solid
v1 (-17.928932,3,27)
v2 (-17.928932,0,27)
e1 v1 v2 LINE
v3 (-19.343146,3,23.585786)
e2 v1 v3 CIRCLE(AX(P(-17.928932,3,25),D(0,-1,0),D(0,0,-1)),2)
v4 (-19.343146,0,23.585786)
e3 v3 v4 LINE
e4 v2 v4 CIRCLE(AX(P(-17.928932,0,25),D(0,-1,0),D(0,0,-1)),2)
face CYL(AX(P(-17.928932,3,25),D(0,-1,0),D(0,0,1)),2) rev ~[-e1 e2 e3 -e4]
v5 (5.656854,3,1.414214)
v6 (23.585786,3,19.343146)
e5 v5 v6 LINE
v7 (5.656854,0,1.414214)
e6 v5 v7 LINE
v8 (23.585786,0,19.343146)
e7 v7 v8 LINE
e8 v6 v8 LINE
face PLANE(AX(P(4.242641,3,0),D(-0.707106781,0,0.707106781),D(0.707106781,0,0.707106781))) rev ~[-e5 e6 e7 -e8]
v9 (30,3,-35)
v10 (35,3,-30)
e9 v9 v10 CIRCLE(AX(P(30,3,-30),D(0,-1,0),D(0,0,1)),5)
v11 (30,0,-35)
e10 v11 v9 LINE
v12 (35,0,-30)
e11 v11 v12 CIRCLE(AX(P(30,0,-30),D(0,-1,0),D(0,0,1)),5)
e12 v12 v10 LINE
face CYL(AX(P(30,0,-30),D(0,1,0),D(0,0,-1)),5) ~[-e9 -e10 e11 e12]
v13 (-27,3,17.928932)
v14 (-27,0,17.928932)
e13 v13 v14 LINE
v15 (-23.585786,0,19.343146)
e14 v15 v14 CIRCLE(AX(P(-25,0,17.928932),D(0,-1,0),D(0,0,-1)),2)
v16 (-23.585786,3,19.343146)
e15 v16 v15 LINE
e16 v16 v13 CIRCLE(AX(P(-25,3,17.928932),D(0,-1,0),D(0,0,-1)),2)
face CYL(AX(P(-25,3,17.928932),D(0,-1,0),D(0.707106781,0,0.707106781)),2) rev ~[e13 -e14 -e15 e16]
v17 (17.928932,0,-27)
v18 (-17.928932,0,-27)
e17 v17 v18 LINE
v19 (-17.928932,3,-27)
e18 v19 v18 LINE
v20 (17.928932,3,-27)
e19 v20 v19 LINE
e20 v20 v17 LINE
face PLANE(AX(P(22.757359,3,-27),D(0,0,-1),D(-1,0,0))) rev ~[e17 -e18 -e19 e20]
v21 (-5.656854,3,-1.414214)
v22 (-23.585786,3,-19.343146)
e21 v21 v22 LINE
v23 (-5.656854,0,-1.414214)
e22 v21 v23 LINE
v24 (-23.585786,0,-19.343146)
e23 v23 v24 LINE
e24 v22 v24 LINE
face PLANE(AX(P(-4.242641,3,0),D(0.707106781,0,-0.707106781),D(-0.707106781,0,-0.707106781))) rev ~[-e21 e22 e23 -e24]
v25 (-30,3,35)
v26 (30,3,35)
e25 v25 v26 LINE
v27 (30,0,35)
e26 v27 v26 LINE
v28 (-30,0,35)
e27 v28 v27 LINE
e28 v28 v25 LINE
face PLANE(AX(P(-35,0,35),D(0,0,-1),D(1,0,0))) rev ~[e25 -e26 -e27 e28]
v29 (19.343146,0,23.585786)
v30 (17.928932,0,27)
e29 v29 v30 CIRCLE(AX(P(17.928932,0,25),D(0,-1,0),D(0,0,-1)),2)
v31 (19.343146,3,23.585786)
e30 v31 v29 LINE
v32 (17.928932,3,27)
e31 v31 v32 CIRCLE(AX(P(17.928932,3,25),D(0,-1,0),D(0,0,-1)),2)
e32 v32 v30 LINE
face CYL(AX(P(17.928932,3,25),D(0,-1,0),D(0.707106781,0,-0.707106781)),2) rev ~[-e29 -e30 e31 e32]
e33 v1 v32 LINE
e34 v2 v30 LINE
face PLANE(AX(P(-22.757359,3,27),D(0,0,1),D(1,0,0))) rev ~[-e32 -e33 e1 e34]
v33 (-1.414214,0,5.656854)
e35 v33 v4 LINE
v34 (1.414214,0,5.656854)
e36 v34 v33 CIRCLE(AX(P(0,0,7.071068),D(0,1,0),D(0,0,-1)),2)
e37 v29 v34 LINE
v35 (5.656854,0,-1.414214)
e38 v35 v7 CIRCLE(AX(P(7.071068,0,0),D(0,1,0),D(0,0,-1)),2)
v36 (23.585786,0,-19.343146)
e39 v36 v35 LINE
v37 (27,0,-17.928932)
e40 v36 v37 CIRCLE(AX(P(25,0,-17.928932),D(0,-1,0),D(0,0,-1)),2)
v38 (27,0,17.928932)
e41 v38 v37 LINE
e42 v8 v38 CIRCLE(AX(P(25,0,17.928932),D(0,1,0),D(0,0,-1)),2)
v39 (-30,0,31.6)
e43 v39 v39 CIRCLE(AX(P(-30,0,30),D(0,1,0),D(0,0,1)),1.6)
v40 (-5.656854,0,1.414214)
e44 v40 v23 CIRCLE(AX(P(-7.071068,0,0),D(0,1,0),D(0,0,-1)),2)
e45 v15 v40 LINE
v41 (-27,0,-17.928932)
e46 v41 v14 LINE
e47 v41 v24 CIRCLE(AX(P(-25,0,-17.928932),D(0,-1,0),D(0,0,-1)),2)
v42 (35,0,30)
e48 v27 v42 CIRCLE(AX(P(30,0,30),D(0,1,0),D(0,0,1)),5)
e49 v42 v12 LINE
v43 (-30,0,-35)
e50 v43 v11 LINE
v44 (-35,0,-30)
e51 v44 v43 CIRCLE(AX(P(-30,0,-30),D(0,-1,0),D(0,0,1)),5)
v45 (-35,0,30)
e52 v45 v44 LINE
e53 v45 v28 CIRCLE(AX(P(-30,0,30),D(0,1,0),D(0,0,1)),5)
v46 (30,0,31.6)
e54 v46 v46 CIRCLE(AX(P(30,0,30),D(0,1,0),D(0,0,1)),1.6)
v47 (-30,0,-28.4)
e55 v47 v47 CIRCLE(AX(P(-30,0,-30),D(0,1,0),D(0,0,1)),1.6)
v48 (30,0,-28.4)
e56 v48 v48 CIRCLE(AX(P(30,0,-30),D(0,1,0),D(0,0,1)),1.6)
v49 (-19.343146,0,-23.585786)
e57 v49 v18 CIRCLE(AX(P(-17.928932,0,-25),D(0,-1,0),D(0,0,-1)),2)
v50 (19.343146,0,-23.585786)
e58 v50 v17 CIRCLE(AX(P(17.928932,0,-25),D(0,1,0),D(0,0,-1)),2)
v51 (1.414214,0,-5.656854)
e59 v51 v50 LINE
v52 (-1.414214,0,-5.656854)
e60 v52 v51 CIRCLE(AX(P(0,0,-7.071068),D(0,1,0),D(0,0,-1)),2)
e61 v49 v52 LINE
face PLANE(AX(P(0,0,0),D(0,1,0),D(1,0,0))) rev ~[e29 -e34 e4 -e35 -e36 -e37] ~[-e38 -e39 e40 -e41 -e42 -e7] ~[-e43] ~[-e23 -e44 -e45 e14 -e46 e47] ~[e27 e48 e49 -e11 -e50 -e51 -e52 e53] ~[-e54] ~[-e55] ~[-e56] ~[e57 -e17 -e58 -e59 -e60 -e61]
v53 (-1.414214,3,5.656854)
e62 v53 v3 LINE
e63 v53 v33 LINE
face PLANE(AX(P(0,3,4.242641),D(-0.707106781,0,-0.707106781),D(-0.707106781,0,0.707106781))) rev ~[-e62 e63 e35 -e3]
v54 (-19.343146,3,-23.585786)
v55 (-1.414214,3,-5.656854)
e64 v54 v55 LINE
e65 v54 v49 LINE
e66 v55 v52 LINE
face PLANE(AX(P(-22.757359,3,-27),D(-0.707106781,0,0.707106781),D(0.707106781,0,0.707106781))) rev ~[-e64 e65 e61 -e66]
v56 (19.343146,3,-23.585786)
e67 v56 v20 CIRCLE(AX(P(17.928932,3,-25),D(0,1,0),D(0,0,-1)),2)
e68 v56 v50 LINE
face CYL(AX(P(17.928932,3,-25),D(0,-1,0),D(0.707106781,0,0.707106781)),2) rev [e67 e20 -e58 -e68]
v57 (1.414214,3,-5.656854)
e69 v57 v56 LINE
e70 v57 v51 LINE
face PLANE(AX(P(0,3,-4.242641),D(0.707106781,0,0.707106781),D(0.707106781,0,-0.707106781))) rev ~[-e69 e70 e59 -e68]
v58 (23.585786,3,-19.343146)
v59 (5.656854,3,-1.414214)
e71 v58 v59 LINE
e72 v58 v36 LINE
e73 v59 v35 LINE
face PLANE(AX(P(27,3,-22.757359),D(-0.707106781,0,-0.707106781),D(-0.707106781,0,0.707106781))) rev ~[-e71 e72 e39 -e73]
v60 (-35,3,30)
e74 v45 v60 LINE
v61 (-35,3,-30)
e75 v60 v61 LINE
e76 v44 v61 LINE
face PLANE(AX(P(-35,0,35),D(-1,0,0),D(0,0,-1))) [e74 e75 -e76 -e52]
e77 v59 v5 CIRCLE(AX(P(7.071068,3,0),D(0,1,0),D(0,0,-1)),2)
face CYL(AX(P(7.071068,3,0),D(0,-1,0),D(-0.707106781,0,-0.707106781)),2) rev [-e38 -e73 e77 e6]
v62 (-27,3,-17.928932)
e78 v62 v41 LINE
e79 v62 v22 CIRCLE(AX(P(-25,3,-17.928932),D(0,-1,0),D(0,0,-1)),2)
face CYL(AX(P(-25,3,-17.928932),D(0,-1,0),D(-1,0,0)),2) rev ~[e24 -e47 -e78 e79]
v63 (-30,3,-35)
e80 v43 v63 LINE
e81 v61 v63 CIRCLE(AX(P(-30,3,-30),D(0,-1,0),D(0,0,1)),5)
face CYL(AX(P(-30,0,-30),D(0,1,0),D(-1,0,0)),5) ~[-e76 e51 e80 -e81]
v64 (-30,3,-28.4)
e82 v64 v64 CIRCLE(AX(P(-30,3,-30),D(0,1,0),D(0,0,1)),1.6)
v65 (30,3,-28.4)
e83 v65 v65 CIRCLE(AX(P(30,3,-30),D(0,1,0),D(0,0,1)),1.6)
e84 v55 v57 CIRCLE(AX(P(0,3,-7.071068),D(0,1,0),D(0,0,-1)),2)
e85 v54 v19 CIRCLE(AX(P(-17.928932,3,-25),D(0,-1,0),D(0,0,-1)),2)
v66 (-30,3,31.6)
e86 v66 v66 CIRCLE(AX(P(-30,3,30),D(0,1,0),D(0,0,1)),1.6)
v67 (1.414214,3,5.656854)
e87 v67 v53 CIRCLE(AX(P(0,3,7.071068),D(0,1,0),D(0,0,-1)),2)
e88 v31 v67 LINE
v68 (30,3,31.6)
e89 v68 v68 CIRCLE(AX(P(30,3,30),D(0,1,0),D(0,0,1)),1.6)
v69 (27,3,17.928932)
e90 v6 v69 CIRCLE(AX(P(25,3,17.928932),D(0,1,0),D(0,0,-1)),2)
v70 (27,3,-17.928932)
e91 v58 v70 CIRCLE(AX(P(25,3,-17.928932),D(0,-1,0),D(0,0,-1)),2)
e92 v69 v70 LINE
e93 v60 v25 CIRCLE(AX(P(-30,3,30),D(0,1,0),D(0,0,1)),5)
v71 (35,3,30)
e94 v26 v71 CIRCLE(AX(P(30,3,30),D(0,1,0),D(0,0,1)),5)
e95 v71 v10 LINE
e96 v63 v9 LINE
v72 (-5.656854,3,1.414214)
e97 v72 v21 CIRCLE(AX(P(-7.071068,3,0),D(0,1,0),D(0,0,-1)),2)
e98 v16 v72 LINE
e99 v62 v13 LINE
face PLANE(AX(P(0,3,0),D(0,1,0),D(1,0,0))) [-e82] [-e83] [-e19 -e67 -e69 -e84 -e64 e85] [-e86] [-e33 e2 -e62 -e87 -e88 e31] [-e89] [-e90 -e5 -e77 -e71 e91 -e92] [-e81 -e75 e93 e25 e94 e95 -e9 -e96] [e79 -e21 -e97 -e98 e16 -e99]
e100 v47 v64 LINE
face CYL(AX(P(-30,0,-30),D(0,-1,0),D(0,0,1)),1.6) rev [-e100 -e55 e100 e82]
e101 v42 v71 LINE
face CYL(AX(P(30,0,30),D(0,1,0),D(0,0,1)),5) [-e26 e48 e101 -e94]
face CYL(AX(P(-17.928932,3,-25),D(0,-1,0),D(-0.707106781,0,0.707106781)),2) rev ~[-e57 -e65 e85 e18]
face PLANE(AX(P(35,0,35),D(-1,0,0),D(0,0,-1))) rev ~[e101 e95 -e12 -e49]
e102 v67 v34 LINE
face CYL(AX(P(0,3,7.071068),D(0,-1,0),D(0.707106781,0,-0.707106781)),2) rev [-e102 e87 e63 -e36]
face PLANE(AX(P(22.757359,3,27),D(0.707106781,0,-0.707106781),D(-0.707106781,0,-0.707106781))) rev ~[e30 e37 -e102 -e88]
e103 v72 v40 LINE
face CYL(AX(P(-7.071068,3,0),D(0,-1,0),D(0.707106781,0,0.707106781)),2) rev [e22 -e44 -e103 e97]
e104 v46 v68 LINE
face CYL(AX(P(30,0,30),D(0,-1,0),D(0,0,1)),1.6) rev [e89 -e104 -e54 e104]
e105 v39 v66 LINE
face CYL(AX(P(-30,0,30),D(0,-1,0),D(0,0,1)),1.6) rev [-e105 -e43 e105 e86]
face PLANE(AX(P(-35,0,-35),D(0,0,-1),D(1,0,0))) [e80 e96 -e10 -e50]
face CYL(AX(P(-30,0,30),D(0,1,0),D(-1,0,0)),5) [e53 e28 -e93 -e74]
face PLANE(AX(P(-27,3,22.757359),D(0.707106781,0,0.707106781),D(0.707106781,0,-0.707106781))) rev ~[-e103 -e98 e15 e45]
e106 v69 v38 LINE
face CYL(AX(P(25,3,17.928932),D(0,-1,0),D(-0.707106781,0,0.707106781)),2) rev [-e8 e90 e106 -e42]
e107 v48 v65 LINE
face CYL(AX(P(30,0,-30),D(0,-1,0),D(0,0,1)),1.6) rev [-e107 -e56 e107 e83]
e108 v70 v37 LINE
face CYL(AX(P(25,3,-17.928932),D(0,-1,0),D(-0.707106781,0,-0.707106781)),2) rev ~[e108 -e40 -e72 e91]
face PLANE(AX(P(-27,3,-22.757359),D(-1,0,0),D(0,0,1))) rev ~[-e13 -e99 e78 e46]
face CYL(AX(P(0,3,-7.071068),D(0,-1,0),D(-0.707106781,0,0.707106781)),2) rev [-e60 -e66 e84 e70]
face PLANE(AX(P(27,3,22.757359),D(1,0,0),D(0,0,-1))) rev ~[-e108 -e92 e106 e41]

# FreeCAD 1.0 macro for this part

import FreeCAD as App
import Part
import Sketcher

V = App.Vector
Q = App.Units.Quantity


def edges_at(feature, points):
    """Names of the edges that pass closest to the given points."""
    edges = feature.Shape.Edges
    near = lambda p: min(range(len(edges)), key=lambda i: edges[i].distToShape(Part.Vertex(*p))[0])
    return sorted({f"Edge{near(p) + 1}" for p in points})

doc = App.newDocument("Part")
body = doc.addObject("PartDesign::Body", "Body")

# Sketch on XZ plane
sketch1 = body.newObject("Sketcher::SketchObject", "Sketch")
sketch1.AttachmentSupport = (doc.getObject("XZ_Plane"), [""])
sketch1.MapMode = "FlatFace"
sketch1.addGeometry(Part.LineSegment(V(-35, -35, 0), V(-35, 35, 0)), False)
sketch1.addGeometry(Part.LineSegment(V(-35, 35, 0), V(35, 35, 0)), False)
sketch1.addGeometry(Part.LineSegment(V(35, 35, 0), V(35, -35, 0)), False)
sketch1.addGeometry(Part.LineSegment(V(35, -35, 0), V(-35, -35, 0)), False)
sketch1.addGeometry(Part.Circle(V(-30, 30, 0), V(0, 0, 1), 1.6), False)
sketch1.addGeometry(Part.Circle(V(30, 30, 0), V(0, 0, 1), 1.6), False)
sketch1.addGeometry(Part.Circle(V(-30, -30, 0), V(0, 0, 1), 1.6), False)
sketch1.addGeometry(Part.Circle(V(30, -30, 0), V(0, 0, 1), 1.6), False)
sketch1.addConstraint(Sketcher.Constraint("Coincident", 0, 2, 1, 1))
sketch1.addConstraint(Sketcher.Constraint("Coincident", 1, 2, 2, 1))
sketch1.addConstraint(Sketcher.Constraint("Coincident", 2, 2, 3, 1))
sketch1.addConstraint(Sketcher.Constraint("Coincident", 3, 2, 0, 1))
sketch1.addConstraint(Sketcher.Constraint("Vertical", 0))
sketch1.addConstraint(Sketcher.Constraint("Horizontal", 1))
sketch1.addConstraint(Sketcher.Constraint("Vertical", 2))
sketch1.addConstraint(Sketcher.Constraint("Horizontal", 3))
sketch1.addConstraint(Sketcher.Constraint("Equal", 4, 5))
sketch1.addConstraint(Sketcher.Constraint("Equal", 5, 6))
sketch1.addConstraint(Sketcher.Constraint("Equal", 6, 7))
sketch1.addConstraint(Sketcher.Constraint("Symmetric", 5, 3, 6, 3, -1, 1))
sketch1.addConstraint(Sketcher.Constraint("Symmetric", 4, 3, 7, 3, -1, 1))
sketch1.addConstraint(Sketcher.Constraint("Symmetric", 0, 2, 2, 2, -1, 1))
sketch1.addConstraint(Sketcher.Constraint("Symmetric", 4, 3, 5, 3, -2))
sketch1.addConstraint(Sketcher.Constraint("Equal", 3, 0))
sketch1.addConstraint(Sketcher.Constraint("Diameter", 4, Q("3.2 mm")))
sketch1.addConstraint(Sketcher.Constraint("DistanceX", 1, 1, 1, 2, Q("70 mm")))
sketch1.addConstraint(Sketcher.Constraint("DistanceX", 4, 3, -1, 1, Q("30 mm")))
sketch1.addConstraint(Sketcher.Constraint("DistanceY", -1, 1, 4, 3, Q("30 mm")))
pad1 = body.newObject("PartDesign::Pad", "Pad")
pad1.Profile = sketch1
pad1.Length = 3
pad1.Reversed = True
doc.recompute()

fillet = body.newObject("PartDesign::Fillet", "Fillet")
fillet.Base = (pad1, edges_at(pad1, [
    (-35, 1.5, -35),
    (35, 1.5, -35),
    (35, 1.5, 35),
    (-35, 1.5, 35),
]))
fillet.Radius = 5

# Sketch on XZ plane
sketch2 = body.newObject("Sketcher::SketchObject", "Sketch001")
sketch2.AttachmentSupport = (doc.getObject("XZ_Plane"), [""])
sketch2.MapMode = "FlatFace"
sketch2.AttachmentOffset = App.Placement(V(0, 0, -3), App.Rotation())
sketch2.addGeometry(Part.LineSegment(V(-23, -27, 0), V(0, -4, 0)), False)
sketch2.addGeometry(Part.LineSegment(V(0, -4, 0), V(23, -27, 0)), False)
sketch2.addGeometry(Part.LineSegment(V(23, -27, 0), V(-23, -27, 0)), False)
sketch2.addConstraint(Sketcher.Constraint("Coincident", 0, 2, 1, 1))
sketch2.addConstraint(Sketcher.Constraint("Coincident", 1, 2, 2, 1))
sketch2.addConstraint(Sketcher.Constraint("Coincident", 2, 2, 0, 1))
sketch2.addConstraint(Sketcher.Constraint("Horizontal", 2))
sketch2.addConstraint(Sketcher.Constraint("PointOnObject", 0, 2, -2))
sketch2.addConstraint(Sketcher.Constraint("Perpendicular", 0, 1))
sketch2.addConstraint(Sketcher.Constraint("Equal", 0, 1))
sketch2.addConstraint(Sketcher.Constraint("DistanceY", 1, 2, -1, 1, Q("27 mm")))
sketch2.addConstraint(Sketcher.Constraint("DistanceX", 2, 2, 2, 1, Q("45.514719 mm")))
pocket1 = body.newObject("PartDesign::Pocket", "Pocket")
pocket1.Profile = sketch2
pocket1.Type = "ThroughAll"
pocket1.Reversed = True
doc.recompute()

fillet2 = body.newObject("PartDesign::Fillet", "Fillet001")
fillet2.Base = (pocket1, edges_at(pocket1, [(22.757, 1.5, -27), (0, 1.5, -4.243), (-22.757, 1.5, -27)]))
fillet2.Radius = 2
doc.recompute()

polarpattern = body.newObject("PartDesign::PolarPattern", "PolarPattern")
polarpattern.Originals = [pocket1]
polarpattern.Axis = (doc.getObject("Y_Axis"), [""])
polarpattern.Angle = 360
polarpattern.Occurrences = 4
body.Tip = polarpattern
doc.recompute()

fillet3 = body.newObject("PartDesign::Fillet", "Fillet002")
fillet3.Base = (polarpattern, edges_at(polarpattern, [
    (-27, 1.5, -22.757),
    (-4.243, 1.5, 0),
    (-27, 1.5, 22.757),
    (-22.757, 1.5, 27),
    (0, 1.5, 4.243),
    (22.757, 1.5, 27),
    (27, 1.5, 22.757),
    (4.243, 1.5, 0),
    (27, 1.5, -22.757),
]))
fillet3.Radius = 2

doc.recompute()
